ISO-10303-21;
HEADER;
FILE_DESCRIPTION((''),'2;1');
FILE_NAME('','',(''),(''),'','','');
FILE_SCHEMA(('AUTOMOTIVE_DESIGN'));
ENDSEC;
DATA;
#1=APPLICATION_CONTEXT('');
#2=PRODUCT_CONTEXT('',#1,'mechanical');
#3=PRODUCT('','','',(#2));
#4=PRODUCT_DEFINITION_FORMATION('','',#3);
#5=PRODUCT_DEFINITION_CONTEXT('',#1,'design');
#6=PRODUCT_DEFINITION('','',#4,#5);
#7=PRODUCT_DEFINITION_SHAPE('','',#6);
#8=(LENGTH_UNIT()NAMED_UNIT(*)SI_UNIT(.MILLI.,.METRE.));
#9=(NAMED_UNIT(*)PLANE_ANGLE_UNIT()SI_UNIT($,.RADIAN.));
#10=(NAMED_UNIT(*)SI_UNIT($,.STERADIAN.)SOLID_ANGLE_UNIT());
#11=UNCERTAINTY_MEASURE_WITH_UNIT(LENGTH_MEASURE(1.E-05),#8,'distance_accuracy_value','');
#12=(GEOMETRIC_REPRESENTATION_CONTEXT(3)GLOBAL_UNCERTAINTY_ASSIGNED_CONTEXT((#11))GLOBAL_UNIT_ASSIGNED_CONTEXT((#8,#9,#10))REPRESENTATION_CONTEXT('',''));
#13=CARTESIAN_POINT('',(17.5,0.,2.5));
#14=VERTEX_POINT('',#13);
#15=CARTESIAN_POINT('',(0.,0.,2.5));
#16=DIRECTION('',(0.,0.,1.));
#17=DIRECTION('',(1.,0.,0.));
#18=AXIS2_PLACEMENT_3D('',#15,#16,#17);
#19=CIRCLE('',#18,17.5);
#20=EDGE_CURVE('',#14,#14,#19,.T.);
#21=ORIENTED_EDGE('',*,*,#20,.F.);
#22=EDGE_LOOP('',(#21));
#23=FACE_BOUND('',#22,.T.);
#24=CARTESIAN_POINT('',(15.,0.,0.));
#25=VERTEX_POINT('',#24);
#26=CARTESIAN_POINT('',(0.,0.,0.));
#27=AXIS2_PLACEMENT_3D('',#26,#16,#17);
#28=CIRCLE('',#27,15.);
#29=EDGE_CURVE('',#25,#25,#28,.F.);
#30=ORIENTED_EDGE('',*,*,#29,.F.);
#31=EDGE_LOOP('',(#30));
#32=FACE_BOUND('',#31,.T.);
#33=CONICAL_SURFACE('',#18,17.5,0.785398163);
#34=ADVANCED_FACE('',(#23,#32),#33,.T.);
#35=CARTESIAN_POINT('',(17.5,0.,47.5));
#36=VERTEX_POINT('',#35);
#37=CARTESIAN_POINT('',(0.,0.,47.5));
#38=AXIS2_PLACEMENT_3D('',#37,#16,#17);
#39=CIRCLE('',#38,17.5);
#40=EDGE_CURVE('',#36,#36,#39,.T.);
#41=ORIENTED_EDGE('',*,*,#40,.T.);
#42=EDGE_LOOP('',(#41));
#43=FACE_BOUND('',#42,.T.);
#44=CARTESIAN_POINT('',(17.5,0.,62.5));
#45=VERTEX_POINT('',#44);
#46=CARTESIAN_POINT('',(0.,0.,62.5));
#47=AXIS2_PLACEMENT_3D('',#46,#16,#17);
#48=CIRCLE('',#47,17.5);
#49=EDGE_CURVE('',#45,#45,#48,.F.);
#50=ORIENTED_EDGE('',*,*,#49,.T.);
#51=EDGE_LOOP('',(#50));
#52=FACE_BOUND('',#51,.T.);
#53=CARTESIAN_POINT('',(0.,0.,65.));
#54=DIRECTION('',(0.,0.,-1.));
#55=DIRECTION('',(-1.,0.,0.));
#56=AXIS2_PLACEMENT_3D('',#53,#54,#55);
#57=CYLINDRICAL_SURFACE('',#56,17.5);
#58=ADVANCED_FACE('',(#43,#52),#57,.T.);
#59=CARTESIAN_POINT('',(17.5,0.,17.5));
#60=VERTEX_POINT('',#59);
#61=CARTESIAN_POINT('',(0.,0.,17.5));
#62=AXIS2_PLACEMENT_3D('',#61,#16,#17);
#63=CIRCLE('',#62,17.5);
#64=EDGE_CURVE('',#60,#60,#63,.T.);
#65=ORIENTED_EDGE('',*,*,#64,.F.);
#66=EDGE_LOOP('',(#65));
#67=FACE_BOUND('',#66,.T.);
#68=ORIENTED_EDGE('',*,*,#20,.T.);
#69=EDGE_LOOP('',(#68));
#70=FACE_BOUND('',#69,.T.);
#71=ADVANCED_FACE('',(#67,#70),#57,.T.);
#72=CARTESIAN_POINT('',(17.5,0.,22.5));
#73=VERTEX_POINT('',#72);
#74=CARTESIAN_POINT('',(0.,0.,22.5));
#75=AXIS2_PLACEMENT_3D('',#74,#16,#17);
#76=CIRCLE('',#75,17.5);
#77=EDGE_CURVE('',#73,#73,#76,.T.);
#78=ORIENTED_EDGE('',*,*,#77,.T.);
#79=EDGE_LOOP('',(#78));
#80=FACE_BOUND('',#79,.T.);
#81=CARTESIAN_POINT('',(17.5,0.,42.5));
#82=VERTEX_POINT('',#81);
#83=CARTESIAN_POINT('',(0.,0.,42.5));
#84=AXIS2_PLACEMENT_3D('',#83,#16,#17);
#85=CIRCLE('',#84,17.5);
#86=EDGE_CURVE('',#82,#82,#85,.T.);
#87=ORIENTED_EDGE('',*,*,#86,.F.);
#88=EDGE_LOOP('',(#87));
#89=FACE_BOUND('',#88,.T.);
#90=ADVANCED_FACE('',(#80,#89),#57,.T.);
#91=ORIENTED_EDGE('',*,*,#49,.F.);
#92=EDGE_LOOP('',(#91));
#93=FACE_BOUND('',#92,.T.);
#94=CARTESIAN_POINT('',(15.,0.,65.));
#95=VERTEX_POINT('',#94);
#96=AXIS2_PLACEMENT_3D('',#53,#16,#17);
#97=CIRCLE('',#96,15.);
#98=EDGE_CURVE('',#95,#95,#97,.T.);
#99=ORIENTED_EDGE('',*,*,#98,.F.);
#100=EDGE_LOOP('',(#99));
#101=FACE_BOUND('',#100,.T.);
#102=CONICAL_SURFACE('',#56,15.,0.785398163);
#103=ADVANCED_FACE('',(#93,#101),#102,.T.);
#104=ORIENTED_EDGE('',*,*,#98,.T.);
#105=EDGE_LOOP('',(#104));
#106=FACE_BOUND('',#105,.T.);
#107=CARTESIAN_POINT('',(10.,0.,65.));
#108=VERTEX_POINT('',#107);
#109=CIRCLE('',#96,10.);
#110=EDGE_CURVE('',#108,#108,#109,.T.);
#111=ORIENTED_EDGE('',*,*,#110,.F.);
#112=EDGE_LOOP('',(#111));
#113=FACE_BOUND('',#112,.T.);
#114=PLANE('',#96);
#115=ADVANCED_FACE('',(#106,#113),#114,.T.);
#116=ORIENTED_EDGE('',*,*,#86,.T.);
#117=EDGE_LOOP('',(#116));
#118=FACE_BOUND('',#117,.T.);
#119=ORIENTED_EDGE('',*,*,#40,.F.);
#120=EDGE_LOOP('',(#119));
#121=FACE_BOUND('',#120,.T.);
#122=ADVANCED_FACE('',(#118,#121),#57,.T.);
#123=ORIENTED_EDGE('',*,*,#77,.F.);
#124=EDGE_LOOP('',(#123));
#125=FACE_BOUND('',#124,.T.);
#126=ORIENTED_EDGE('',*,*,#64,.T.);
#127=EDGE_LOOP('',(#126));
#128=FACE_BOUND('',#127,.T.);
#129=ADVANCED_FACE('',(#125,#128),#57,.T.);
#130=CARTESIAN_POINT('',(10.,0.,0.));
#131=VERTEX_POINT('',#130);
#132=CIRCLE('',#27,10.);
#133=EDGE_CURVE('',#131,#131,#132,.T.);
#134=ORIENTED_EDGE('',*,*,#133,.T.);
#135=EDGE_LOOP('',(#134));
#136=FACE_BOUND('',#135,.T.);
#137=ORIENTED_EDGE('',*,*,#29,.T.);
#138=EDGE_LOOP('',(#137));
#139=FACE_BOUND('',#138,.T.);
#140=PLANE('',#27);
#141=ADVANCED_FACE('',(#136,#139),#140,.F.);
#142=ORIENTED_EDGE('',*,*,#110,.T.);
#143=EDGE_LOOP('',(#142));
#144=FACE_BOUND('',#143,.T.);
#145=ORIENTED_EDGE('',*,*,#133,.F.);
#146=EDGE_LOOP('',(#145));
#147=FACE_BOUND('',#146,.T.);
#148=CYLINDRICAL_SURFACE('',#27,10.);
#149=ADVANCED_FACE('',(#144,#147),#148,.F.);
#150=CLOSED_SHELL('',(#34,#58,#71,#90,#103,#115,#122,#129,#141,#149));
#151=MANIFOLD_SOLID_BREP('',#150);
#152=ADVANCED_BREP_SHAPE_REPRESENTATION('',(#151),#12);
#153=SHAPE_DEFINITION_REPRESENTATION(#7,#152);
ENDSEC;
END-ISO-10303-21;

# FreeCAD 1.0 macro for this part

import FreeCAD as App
import Part
import Sketcher
from FreeCAD import Vector
Q = App.Units.Quantity


def edges_at(feature, points):
    """Names of the edges that pass closest to the given points."""
    edges = feature.Shape.Edges
    near = lambda p: min(range(len(edges)), key=lambda i: edges[i].distToShape(Part.Vertex(*p))[0])
    return sorted({f"Edge{near(p) + 1}" for p in points})

doc = App.newDocument("Part")
body = doc.addObject("PartDesign::Body", "Body")

# Sketch on XY plane
sketch1 = body.newObject("Sketcher::SketchObject", "Sketch")
sketch1.AttachmentSupport = (doc.getObject("XY_Plane"), [""])
sketch1.MapMode = "FlatFace"
sketch1.addGeometry(Part.Circle(Vector(0, 0, 0), Vector(0, 0, 1), 18), False)
sketch1.addConstraint(Sketcher.Constraint("Coincident", 0, 3, -1, 1))
sketch1.addConstraint(Sketcher.Constraint("Diameter", 0, Q("35 mm")))
pad1 = body.newObject("PartDesign::Pad", "Pad")
pad1.Profile = sketch1
pad1.Length = 65

# Sketch on XY plane
sketch2 = body.newObject("Sketcher::SketchObject", "Sketch001")
sketch2.AttachmentSupport = (doc.getObject("XY_Plane"), [""])
sketch2.MapMode = "FlatFace"
sketch2.AttachmentOffset = App.Placement(Vector(0, 0, 65), App.Rotation())
sketch2.addGeometry(Part.Circle(Vector(0, 0, 0), Vector(0, 0, 1), 10), False)
sketch2.addConstraint(Sketcher.Constraint("Coincident", 0, 3, -1, 1))
sketch2.addConstraint(Sketcher.Constraint("Diameter", 0, Q("20 mm")))
pocket1 = body.newObject("PartDesign::Pocket", "Pocket")
pocket1.Profile = sketch2
pocket1.Type = "ThroughAll"
pocket1.Midplane = True
doc.recompute()

chamfer = body.newObject("PartDesign::Chamfer", "Chamfer")
chamfer.Base = (pocket1, edges_at(pocket1, [(-17.5, 0, 0), (-17.5, 0, 65)]))
chamfer.Size = 2.5

doc.recompute()
